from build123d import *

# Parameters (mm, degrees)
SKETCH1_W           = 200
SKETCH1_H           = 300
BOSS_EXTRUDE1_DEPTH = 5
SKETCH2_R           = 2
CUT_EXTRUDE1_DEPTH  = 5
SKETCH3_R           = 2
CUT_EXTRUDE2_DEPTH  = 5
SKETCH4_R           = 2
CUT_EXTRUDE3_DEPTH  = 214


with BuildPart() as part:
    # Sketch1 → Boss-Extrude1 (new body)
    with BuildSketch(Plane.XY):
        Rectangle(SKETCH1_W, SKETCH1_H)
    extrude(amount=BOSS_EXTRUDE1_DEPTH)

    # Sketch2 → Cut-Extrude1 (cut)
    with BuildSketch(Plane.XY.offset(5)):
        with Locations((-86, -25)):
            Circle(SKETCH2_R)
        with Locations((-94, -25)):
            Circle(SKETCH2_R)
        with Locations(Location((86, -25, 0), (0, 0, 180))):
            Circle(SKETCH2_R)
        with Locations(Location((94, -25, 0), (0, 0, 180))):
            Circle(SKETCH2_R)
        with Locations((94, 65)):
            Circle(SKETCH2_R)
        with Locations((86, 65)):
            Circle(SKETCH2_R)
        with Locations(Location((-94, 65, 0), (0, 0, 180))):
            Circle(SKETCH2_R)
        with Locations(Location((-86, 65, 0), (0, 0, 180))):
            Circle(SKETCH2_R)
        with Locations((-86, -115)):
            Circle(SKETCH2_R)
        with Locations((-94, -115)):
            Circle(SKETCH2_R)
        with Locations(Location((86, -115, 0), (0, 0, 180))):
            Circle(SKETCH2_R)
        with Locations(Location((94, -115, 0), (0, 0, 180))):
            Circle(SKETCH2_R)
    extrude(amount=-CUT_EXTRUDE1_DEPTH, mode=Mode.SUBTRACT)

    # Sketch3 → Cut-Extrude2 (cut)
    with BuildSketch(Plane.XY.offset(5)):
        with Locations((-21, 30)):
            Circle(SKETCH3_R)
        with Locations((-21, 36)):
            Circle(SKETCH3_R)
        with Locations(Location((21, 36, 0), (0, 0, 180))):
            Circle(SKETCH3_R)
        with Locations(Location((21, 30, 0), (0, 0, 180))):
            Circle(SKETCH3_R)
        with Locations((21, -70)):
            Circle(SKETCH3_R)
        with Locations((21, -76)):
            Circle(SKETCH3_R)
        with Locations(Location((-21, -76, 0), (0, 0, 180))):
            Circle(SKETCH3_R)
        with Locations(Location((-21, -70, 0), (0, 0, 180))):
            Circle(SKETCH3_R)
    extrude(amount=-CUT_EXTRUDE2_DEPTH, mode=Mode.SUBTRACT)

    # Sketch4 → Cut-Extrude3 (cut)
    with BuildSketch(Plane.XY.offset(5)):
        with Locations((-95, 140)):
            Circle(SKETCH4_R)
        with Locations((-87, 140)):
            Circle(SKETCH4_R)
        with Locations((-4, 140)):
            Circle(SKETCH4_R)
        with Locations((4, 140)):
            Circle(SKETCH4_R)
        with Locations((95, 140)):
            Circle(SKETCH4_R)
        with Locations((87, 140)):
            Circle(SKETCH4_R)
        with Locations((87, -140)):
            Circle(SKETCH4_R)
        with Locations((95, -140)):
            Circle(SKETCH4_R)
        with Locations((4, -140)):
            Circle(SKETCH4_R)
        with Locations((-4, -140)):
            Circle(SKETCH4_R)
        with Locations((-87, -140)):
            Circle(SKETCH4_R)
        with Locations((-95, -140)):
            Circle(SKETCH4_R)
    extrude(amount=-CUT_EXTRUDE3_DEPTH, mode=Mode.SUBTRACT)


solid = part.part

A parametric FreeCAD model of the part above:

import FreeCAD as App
import Part
import Sketcher
from FreeCAD import Vector

doc = App.newDocument("Part")
body = doc.addObject("PartDesign::Body", "Body")

# Sketch on XY plane
sketch1 = body.newObject("Sketcher::SketchObject", "Sketch")
sketch1.AttachmentSupport = (doc.getObject("XY_Plane"), [""])
sketch1.MapMode = "FlatFace"
sketch1.addGeometry([
    Part.LineSegment(Vector(-100, 150, 0), Vector(-100, -150, 0)),
    Part.LineSegment(Vector(-100, -150, 0), Vector(100, -150, 0)),
    Part.LineSegment(Vector(100, -150, 0), Vector(100, 150, 0)),
    Part.LineSegment(Vector(100, 150, 0), Vector(-100, 150, 0)),
], False)
sketch1.addConstraint([
    Sketcher.Constraint("Coincident", 0, 2, 1, 1),
    Sketcher.Constraint("Coincident", 1, 2, 2, 1),
    Sketcher.Constraint("Coincident", 2, 2, 3, 1),
    Sketcher.Constraint("Coincident", 3, 2, 0, 1),
    Sketcher.Constraint("Vertical", 0),
    Sketcher.Constraint("Horizontal", 1),
    Sketcher.Constraint("Vertical", 2),
    Sketcher.Constraint("Horizontal", 3),
    Sketcher.Constraint("Symmetric", 0, 2, 2, 2, -1, 1),
    Sketcher.Constraint("DistanceX", 1, 1, 1, 2, 200.0),
    Sketcher.Constraint("DistanceY", 0, 2, 0, 1, 300.0),
])
pad1 = body.newObject("PartDesign::Pad", "Pad")
pad1.Profile = sketch1
pad1.Length = 5

# Sketch on XY plane
sketch2 = body.newObject("Sketcher::SketchObject", "Sketch001")
sketch2.AttachmentSupport = (doc.getObject("XY_Plane"), [""])
sketch2.MapMode = "FlatFace"
sketch2.AttachmentOffset = App.Placement(Vector(0, 0, 5), App.Rotation())
sketch2.addGeometry([
    Part.Circle(Vector(-86, -25, 0), Vector(0, 0, 1), 2),  # 0
    Part.Circle(Vector(-94, -25, 0), Vector(0, 0, 1), 2),  # 1
    Part.Circle(Vector(86, -25, 0), Vector(0, 0, 1), 2),  # 2
    Part.Circle(Vector(94, -25, 0), Vector(0, 0, 1), 2),  # 3
    Part.Circle(Vector(94, 65, 0), Vector(0, 0, 1), 2),  # 4
    Part.Circle(Vector(86, 65, 0), Vector(0, 0, 1), 2),  # 5
    Part.Circle(Vector(-94, 65, 0), Vector(0, 0, 1), 2),  # 6
    Part.Circle(Vector(-86, 65, 0), Vector(0, 0, 1), 2),  # 7
    Part.Circle(Vector(-86, -115, 0), Vector(0, 0, 1), 2),  # 8
    Part.Circle(Vector(-94, -115, 0), Vector(0, 0, 1), 2),  # 9
    Part.Circle(Vector(86, -115, 0), Vector(0, 0, 1), 2),  # 10
    Part.Circle(Vector(94, -115, 0), Vector(0, 0, 1), 2),  # 11
], False)
sketch2.addConstraint([
    Sketcher.Constraint("Equal", 0, 1),
    Sketcher.Constraint("Equal", 1, 2),
    Sketcher.Constraint("Equal", 2, 3),
    Sketcher.Constraint("Equal", 3, 4),
    Sketcher.Constraint("Equal", 4, 5),
    Sketcher.Constraint("Equal", 5, 6),
    Sketcher.Constraint("Equal", 6, 7),
    Sketcher.Constraint("Equal", 7, 8),
    Sketcher.Constraint("Equal", 8, 9),
    Sketcher.Constraint("Equal", 9, 10),
    Sketcher.Constraint("Equal", 10, 11),
    Sketcher.Constraint("Symmetric", 0, 3, 2, 3, -2),
    Sketcher.Constraint("Symmetric", 1, 3, 3, 3, -2),
    Sketcher.Constraint("Symmetric", 4, 3, 6, 3, -2),
    Sketcher.Constraint("Symmetric", 5, 3, 7, 3, -2),
    Sketcher.Constraint("Symmetric", 8, 3, 10, 3, -2),
    Sketcher.Constraint("Symmetric", 9, 3, 11, 3, -2),
    Sketcher.Constraint("Horizontal", 0, 3, 1, 3),
    Sketcher.Constraint("Horizontal", 4, 3, 5, 3),
    Sketcher.Constraint("Horizontal", 8, 3, 9, 3),
    Sketcher.Constraint("Vertical", 3, 3, 4, 3),
    Sketcher.Constraint("Vertical", 2, 3, 5, 3),
    Sketcher.Constraint("Vertical", 7, 3, 8, 3),
    Sketcher.Constraint("Vertical", 6, 3, 9, 3),
    Sketcher.Constraint("Diameter", 0, 4.0),
    Sketcher.Constraint("DistanceX", 0, 3, -1, 1, 86.0),
    Sketcher.Constraint("DistanceY", 0, 3, -1, 1, 25.0),
    Sketcher.Constraint("DistanceX", 1, 3, -1, 1, 94.0),
    Sketcher.Constraint("DistanceY", -1, 1, 4, 3, 65.0),
    Sketcher.Constraint("DistanceY", 8, 3, -1, 1, 115.0),
])
pocket1 = body.newObject("PartDesign::Pocket", "Pocket")
pocket1.Profile = sketch2
pocket1.Length = 5

# Sketch on XY plane
sketch3 = body.newObject("Sketcher::SketchObject", "Sketch002")
sketch3.AttachmentSupport = (doc.getObject("XY_Plane"), [""])
sketch3.MapMode = "FlatFace"
sketch3.AttachmentOffset = App.Placement(Vector(0, 0, 5), App.Rotation())
sketch3.addGeometry([
    Part.Circle(Vector(-21, 30, 0), Vector(0, 0, 1), 2),  # 0
    Part.Circle(Vector(-21, 36, 0), Vector(0, 0, 1), 2),  # 1
    Part.Circle(Vector(21, 36, 0), Vector(0, 0, 1), 2),  # 2
    Part.Circle(Vector(21, 30, 0), Vector(0, 0, 1), 2),  # 3
    Part.Circle(Vector(21, -70, 0), Vector(0, 0, 1), 2),  # 4
    Part.Circle(Vector(21, -76, 0), Vector(0, 0, 1), 2),  # 5
    Part.Circle(Vector(-21, -76, 0), Vector(0, 0, 1), 2),  # 6
    Part.Circle(Vector(-21, -70, 0), Vector(0, 0, 1), 2),  # 7
], False)
sketch3.addConstraint([
    Sketcher.Constraint("Equal", 0, 1),
    Sketcher.Constraint("Equal", 1, 2),
    Sketcher.Constraint("Equal", 2, 3),
    Sketcher.Constraint("Equal", 3, 4),
    Sketcher.Constraint("Equal", 4, 5),
    Sketcher.Constraint("Equal", 5, 6),
    Sketcher.Constraint("Equal", 6, 7),
    Sketcher.Constraint("Symmetric", 1, 3, 2, 3, -2),
    Sketcher.Constraint("Symmetric", 0, 3, 3, 3, -2),
    Sketcher.Constraint("Symmetric", 5, 3, 6, 3, -2),
    Sketcher.Constraint("Symmetric", 4, 3, 7, 3, -2),
    Sketcher.Constraint("Vertical", 0, 3, 1, 3),
    Sketcher.Constraint("Vertical", 3, 3, 4, 3),
    Sketcher.Constraint("Vertical", 4, 3, 5, 3),
    Sketcher.Constraint("Diameter", 0, 4.0),
    Sketcher.Constraint("DistanceX", 0, 3, -1, 1, 21.0),
    Sketcher.Constraint("DistanceY", -1, 1, 0, 3, 30.0),
    Sketcher.Constraint("DistanceY", -1, 1, 1, 3, 36.0),
    Sketcher.Constraint("DistanceY", 4, 3, -1, 1, 70.0),
    Sketcher.Constraint("DistanceY", 5, 3, -1, 1, 76.0),
])
pocket2 = body.newObject("PartDesign::Pocket", "Pocket001")
pocket2.Profile = sketch3
pocket2.Length = 5

# Sketch on XY plane
sketch4 = body.newObject("Sketcher::SketchObject", "Sketch003")
sketch4.AttachmentSupport = (doc.getObject("XY_Plane"), [""])
sketch4.MapMode = "FlatFace"
sketch4.AttachmentOffset = App.Placement(Vector(0, 0, 5), App.Rotation())
sketch4.addGeometry([
    Part.Circle(Vector(-95, 140, 0), Vector(0, 0, 1), 2),  # 0
    Part.Circle(Vector(-87, 140, 0), Vector(0, 0, 1), 2),  # 1
    Part.Circle(Vector(-4, 140, 0), Vector(0, 0, 1), 2),  # 2
    Part.Circle(Vector(4, 140, 0), Vector(0, 0, 1), 2),  # 3
    Part.Circle(Vector(95, 140, 0), Vector(0, 0, 1), 2),  # 4
    Part.Circle(Vector(87, 140, 0), Vector(0, 0, 1), 2),  # 5
    Part.Circle(Vector(87, -140, 0), Vector(0, 0, 1), 2),  # 6
    Part.Circle(Vector(95, -140, 0), Vector(0, 0, 1), 2),  # 7
    Part.Circle(Vector(4, -140, 0), Vector(0, 0, 1), 2),  # 8
    Part.Circle(Vector(-4, -140, 0), Vector(0, 0, 1), 2),  # 9
    Part.Circle(Vector(-87, -140, 0), Vector(0, 0, 1), 2),  # 10
    Part.Circle(Vector(-95, -140, 0), Vector(0, 0, 1), 2),  # 11
], False)
sketch4.addConstraint([
    Sketcher.Constraint("Equal", 0, 1),
    Sketcher.Constraint("Equal", 1, 2),
    Sketcher.Constraint("Equal", 2, 3),
    Sketcher.Constraint("Equal", 3, 4),
    Sketcher.Constraint("Equal", 4, 5),
    Sketcher.Constraint("Equal", 5, 6),
    Sketcher.Constraint("Equal", 6, 7),
    Sketcher.Constraint("Equal", 7, 8),
    Sketcher.Constraint("Equal", 8, 9),
    Sketcher.Constraint("Equal", 9, 10),
    Sketcher.Constraint("Equal", 10, 11),
    Sketcher.Constraint("Symmetric", 1, 3, 6, 3, -1, 1),
    Sketcher.Constraint("Symmetric", 0, 3, 7, 3, -1, 1),
    Sketcher.Constraint("Symmetric", 2, 3, 8, 3, -1, 1),
    Sketcher.Constraint("Symmetric", 3, 3, 9, 3, -1, 1),
    Sketcher.Constraint("Symmetric", 5, 3, 10, 3, -1, 1),
    Sketcher.Constraint("Symmetric", 4, 3, 11, 3, -1, 1),
    Sketcher.Constraint("Symmetric", 2, 3, 3, 3, -2),
    Sketcher.Constraint("Symmetric", 0, 3, 4, 3, -2),
    Sketcher.Constraint("Symmetric", 1, 3, 5, 3, -2),
    Sketcher.Constraint("Horizontal", 0, 3, 1, 3),
    Sketcher.Constraint("Horizontal", 1, 3, 2, 3),
    Sketcher.Constraint("Diameter", 0, 4.0),
    Sketcher.Constraint("DistanceX", 0, 3, -1, 1, 95.0),
    Sketcher.Constraint("DistanceY", -1, 1, 0, 3, 140.0),
    Sketcher.Constraint("DistanceX", 1, 3, -1, 1, 87.0),
    Sketcher.Constraint("DistanceX", 2, 3, -1, 1, 4.0),
])
pocket3 = body.newObject("PartDesign::Pocket", "Pocket002")
pocket3.Profile = sketch4
pocket3.Length = 214

doc.recompute()
